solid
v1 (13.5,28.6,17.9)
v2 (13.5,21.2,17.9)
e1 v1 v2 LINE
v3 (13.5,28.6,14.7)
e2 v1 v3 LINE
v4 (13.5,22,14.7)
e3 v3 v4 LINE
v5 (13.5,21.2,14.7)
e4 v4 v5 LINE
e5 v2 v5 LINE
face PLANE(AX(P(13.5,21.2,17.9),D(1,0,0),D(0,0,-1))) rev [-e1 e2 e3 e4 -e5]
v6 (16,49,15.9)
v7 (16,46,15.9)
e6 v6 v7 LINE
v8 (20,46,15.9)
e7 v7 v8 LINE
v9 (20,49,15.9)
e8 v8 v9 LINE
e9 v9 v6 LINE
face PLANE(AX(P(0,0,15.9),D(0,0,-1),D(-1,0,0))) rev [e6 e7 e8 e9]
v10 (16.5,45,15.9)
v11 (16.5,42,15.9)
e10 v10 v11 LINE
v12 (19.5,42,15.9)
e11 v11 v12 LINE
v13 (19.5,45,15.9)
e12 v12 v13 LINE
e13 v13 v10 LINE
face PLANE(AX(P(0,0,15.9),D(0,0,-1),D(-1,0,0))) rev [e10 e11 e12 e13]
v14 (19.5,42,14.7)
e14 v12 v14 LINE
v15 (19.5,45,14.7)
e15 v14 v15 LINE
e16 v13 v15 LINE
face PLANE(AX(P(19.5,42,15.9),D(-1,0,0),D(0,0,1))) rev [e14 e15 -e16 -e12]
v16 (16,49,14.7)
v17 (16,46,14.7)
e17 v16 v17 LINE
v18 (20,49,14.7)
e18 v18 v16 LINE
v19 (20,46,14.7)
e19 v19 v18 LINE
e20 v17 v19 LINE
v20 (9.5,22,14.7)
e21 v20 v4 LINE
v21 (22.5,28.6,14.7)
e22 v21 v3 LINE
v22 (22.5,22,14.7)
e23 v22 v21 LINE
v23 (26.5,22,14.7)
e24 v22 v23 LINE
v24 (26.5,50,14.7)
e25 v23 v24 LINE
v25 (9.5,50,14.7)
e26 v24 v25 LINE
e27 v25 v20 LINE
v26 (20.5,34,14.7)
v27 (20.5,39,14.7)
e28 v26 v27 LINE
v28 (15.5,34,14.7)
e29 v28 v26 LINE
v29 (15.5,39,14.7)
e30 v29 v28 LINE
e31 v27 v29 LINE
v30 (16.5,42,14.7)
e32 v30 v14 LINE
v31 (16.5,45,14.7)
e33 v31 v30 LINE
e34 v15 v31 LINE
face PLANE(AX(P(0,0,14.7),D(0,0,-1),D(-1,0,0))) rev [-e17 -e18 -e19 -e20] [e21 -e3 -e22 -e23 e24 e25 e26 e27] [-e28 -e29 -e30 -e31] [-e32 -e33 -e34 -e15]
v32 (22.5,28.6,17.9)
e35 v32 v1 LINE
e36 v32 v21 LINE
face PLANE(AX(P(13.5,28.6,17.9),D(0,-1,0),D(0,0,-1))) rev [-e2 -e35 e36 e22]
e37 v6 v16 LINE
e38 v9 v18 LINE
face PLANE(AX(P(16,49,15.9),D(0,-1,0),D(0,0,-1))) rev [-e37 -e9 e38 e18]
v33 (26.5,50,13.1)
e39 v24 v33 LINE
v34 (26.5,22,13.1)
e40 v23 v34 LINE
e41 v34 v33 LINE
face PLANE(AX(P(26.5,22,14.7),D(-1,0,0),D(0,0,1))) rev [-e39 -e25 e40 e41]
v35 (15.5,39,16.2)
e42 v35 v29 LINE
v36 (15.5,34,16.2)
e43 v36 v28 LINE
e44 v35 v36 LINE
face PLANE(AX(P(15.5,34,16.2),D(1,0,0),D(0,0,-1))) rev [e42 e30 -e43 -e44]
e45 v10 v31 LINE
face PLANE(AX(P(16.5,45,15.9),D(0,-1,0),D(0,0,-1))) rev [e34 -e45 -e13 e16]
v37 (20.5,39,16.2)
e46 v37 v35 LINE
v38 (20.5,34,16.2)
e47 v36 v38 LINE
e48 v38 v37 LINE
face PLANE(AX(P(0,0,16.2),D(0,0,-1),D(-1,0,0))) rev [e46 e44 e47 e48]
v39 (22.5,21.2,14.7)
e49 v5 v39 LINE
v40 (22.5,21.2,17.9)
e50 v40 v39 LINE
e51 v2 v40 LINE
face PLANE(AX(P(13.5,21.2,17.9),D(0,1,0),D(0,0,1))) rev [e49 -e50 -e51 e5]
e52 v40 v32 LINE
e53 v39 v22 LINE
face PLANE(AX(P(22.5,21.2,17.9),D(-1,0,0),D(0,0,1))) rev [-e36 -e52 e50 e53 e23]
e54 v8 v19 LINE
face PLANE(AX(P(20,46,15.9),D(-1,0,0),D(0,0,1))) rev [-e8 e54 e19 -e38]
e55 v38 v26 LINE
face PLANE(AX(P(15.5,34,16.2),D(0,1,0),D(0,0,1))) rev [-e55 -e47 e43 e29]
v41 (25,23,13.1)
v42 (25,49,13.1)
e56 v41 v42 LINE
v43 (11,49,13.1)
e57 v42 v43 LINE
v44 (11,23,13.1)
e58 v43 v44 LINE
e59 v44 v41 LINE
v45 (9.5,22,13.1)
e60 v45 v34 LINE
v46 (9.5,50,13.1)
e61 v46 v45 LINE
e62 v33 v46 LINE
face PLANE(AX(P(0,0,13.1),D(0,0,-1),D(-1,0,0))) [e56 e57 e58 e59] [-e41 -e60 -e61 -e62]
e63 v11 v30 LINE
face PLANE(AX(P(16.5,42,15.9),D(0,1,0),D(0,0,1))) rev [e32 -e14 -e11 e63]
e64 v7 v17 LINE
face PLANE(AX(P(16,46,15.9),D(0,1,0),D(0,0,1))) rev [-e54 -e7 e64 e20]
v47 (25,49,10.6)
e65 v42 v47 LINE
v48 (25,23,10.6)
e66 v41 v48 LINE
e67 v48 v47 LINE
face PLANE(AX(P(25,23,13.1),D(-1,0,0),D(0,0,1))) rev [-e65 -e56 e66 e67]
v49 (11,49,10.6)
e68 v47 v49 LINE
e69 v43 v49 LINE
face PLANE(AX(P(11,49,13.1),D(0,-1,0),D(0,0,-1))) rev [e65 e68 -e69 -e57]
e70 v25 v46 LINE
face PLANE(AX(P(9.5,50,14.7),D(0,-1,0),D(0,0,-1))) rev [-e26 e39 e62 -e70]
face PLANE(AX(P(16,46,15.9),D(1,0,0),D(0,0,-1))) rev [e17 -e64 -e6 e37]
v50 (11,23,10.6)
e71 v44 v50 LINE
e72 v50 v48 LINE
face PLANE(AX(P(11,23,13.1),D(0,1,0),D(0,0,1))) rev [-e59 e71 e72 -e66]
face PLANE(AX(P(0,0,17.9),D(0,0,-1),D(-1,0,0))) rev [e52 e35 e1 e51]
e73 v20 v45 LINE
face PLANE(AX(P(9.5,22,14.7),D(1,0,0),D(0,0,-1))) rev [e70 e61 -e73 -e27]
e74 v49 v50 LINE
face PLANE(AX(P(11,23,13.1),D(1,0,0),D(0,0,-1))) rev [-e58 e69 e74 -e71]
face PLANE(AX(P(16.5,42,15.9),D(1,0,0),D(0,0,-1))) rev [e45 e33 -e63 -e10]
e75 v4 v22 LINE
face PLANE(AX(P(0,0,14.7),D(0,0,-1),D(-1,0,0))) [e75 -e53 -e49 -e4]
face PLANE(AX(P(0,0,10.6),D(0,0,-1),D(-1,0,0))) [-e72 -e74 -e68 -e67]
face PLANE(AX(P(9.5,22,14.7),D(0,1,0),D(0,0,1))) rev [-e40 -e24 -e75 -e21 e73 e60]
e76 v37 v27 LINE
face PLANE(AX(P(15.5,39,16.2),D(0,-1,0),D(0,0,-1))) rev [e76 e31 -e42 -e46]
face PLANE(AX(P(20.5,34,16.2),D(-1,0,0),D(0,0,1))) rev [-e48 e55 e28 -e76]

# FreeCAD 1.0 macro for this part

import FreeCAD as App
import Part
import Sketcher
Q = App.Units.Quantity


def add_polygon(sketch, points):
    """Adds a closed chain of lines whose ends are joined by coincident constraints."""
    first, n = sketch.GeometryCount, len(points)
    for a, b in zip(points, points[1:] + points[:1]):
        sketch.addGeometry(Part.LineSegment(App.Vector(*a, 0), App.Vector(*b, 0)), False)
    for i in range(n):
        sketch.addConstraint(Sketcher.Constraint("Coincident", first + i, 2, first + (i + 1) % n, 1))

doc = App.newDocument("Part")
params = doc.addObject("Spreadsheet::Sheet", "Params")
for row, (alias, value) in enumerate([
    ("sketch1_width", "14 mm"),
    ("sketch1_height", "26 mm"),
    ("pad1_length", "2.5 mm"),
    ("sketch2_width", "17 mm"),
    ("sketch2_height", "28 mm"),
    ("pad2_length", "1.6 mm"),
    ("sketch3_width", "9 mm"),
    ("sketch3_height", "7.4 mm"),
    ("pad3_length", "3.2 mm"),
    ("sketch4_width", "5 mm"),
    ("pad4_length", "1.5 mm"),
    ("sketch5_width", "3 mm"),
    ("pad5_length", "1.2 mm"),
    ("sketch6_width", "4 mm"),
    ("sketch6_height", "3 mm"),
    ("pad6_length", "1.2 mm"),
], start=1):
    params.set(f"A{row}", alias)
    params.set(f"B{row}", "=" + value)
    params.setAlias(f"B{row}", alias)

body = doc.addObject("PartDesign::Body", "Body")

sketch1 = body.newObject("Sketcher::SketchObject", "Sketch")
sketch1.AttachmentSupport = (doc.getObject("XY_Plane"), [""])
sketch1.MapMode = "FlatFace"
sketch1.AttachmentOffset = App.Placement(App.Vector(0, 0, 10.6), App.Rotation())
add_polygon(sketch1, [(11, 49), (11, 23), (25, 23), (25, 49)])
sketch1.addConstraint([
    Sketcher.Constraint("Vertical", 0),
    Sketcher.Constraint("Horizontal", 1),
    Sketcher.Constraint("Vertical", 2),
    Sketcher.Constraint("Horizontal", 3),
    Sketcher.Constraint("DistanceX", 1, 1, 1, 2, Q("14 mm")),
    Sketcher.Constraint("DistanceY", 0, 2, 0, 1, Q("26 mm")),
    Sketcher.Constraint("DistanceX", -1, 1, 0, 2, Q("11 mm")),
    Sketcher.Constraint("DistanceY", -1, 1, 0, 2, Q("23 mm")),
])
sketch1.setExpression("Constraints[8]", "Params.sketch1_width")
sketch1.setExpression("Constraints[9]", "Params.sketch1_height")
pad1 = body.newObject("PartDesign::Pad", "Pad")
pad1.Profile = sketch1
pad1.setExpression("Length", "Params.pad1_length")

sketch2 = body.newObject("Sketcher::SketchObject", "Sketch001")
sketch2.AttachmentSupport = (doc.getObject("XY_Plane"), [""])
sketch2.MapMode = "FlatFace"
sketch2.AttachmentOffset = App.Placement(App.Vector(0, 0, 13.1), App.Rotation())
add_polygon(sketch2, [(10, 50), (10, 22), (26, 22), (26, 50)])
sketch2.addConstraint([
    Sketcher.Constraint("Vertical", 0),
    Sketcher.Constraint("Horizontal", 1),
    Sketcher.Constraint("Vertical", 2),
    Sketcher.Constraint("Horizontal", 3),
    Sketcher.Constraint("DistanceX", 1, 1, 1, 2, Q("17 mm")),
    Sketcher.Constraint("DistanceY", 0, 2, 0, 1, Q("28 mm")),
    Sketcher.Constraint("DistanceY", -1, 1, 0, 2, Q("22 mm")),
    Sketcher.Constraint("DistanceX", -1, 1, 0, 2, Q("9.5 mm")),
])
sketch2.setExpression("Constraints[8]", "Params.sketch2_width")
sketch2.setExpression("Constraints[9]", "Params.sketch2_height")
pad2 = body.newObject("PartDesign::Pad", "Pad001")
pad2.Profile = sketch2
pad2.setExpression("Length", "Params.pad2_length")

sketch3 = body.newObject("Sketcher::SketchObject", "Sketch002")
sketch3.AttachmentSupport = (doc.getObject("XY_Plane"), [""])
sketch3.MapMode = "FlatFace"
sketch3.AttachmentOffset = App.Placement(App.Vector(0, 0, 14.7), App.Rotation())
add_polygon(sketch3, [(14, 29), (14, 21), (22, 21), (22, 29)])
sketch3.addConstraint([
    Sketcher.Constraint("Vertical", 0),
    Sketcher.Constraint("Horizontal", 1),
    Sketcher.Constraint("Vertical", 2),
    Sketcher.Constraint("Horizontal", 3),
    Sketcher.Constraint("DistanceX", 1, 1, 1, 2, Q("9 mm")),
    Sketcher.Constraint("DistanceY", 0, 2, 0, 1, Q("7.4 mm")),
    Sketcher.Constraint("DistanceX", -1, 1, 0, 2, Q("13.5 mm")),
    Sketcher.Constraint("DistanceY", -1, 1, 0, 2, Q("21.2 mm")),
])
sketch3.setExpression("Constraints[8]", "Params.sketch3_width")
sketch3.setExpression("Constraints[9]", "Params.sketch3_height")
pad3 = body.newObject("PartDesign::Pad", "Pad002")
pad3.Profile = sketch3
pad3.setExpression("Length", "Params.pad3_length")

sketch4 = body.newObject("Sketcher::SketchObject", "Sketch003")
sketch4.AttachmentSupport = (doc.getObject("XY_Plane"), [""])
sketch4.MapMode = "FlatFace"
sketch4.AttachmentOffset = App.Placement(App.Vector(0, 0, 14.7), App.Rotation())
add_polygon(sketch4, [(16, 39), (16, 34), (20, 34), (20, 39)])
sketch4.addConstraint([
    Sketcher.Constraint("Vertical", 0),
    Sketcher.Constraint("Horizontal", 1),
    Sketcher.Constraint("Vertical", 2),
    Sketcher.Constraint("Horizontal", 3),
    Sketcher.Constraint("Equal", 3, 0),
    Sketcher.Constraint("DistanceX", 1, 1, 1, 2, Q("5 mm")),
    Sketcher.Constraint("DistanceY", -1, 1, 0, 2, Q("34 mm")),
    Sketcher.Constraint("DistanceX", -1, 1, 0, 2, Q("15.5 mm")),
])
sketch4.setExpression("Constraints[9]", "Params.sketch4_width")
pad4 = body.newObject("PartDesign::Pad", "Pad003")
pad4.Profile = sketch4
pad4.setExpression("Length", "Params.pad4_length")

sketch5 = body.newObject("Sketcher::SketchObject", "Sketch004")
sketch5.AttachmentSupport = (doc.getObject("XY_Plane"), [""])
sketch5.MapMode = "FlatFace"
sketch5.AttachmentOffset = App.Placement(App.Vector(0, 0, 14.7), App.Rotation())
add_polygon(sketch5, [(16.5, 45), (16.5, 42), (19.5, 42), (19.5, 45)])
sketch5.addConstraint([
    Sketcher.Constraint("Vertical", 0),
    Sketcher.Constraint("Horizontal", 1),
    Sketcher.Constraint("Vertical", 2),
    Sketcher.Constraint("Horizontal", 3),
    Sketcher.Constraint("Equal", 3, 0),
    Sketcher.Constraint("DistanceX", 1, 1, 1, 2, Q("3 mm")),
    Sketcher.Constraint("DistanceY", -1, 1, 0, 2, Q("42 mm")),
    Sketcher.Constraint("DistanceX", -1, 1, 0, 2, Q("16.5 mm")),
])
sketch5.setExpression("Constraints[9]", "Params.sketch5_width")
pad5 = body.newObject("PartDesign::Pad", "Pad004")
pad5.Profile = sketch5
pad5.setExpression("Length", "Params.pad5_length")

sketch6 = body.newObject("Sketcher::SketchObject", "Sketch005")
sketch6.AttachmentSupport = (doc.getObject("XY_Plane"), [""])
sketch6.MapMode = "FlatFace"
sketch6.AttachmentOffset = App.Placement(App.Vector(0, 0, 14.7), App.Rotation())
add_polygon(sketch6, [(16, 49), (16, 46), (20, 46), (20, 49)])
sketch6.addConstraint([
    Sketcher.Constraint("Vertical", 0),
    Sketcher.Constraint("Horizontal", 1),
    Sketcher.Constraint("Vertical", 2),
    Sketcher.Constraint("Horizontal", 3),
    Sketcher.Constraint("DistanceX", 1, 1, 1, 2, Q("4 mm")),
    Sketcher.Constraint("DistanceY", 0, 2, 0, 1, Q("3 mm")),
    Sketcher.Constraint("DistanceX", -1, 1, 0, 2, Q("16 mm")),
    Sketcher.Constraint("DistanceY", -1, 1, 0, 2, Q("46 mm")),
])
sketch6.setExpression("Constraints[8]", "Params.sketch6_width")
sketch6.setExpression("Constraints[9]", "Params.sketch6_height")
pad6 = body.newObject("PartDesign::Pad", "Pad005")
pad6.Profile = sketch6
pad6.setExpression("Length", "Params.pad6_length")

doc.recompute()
